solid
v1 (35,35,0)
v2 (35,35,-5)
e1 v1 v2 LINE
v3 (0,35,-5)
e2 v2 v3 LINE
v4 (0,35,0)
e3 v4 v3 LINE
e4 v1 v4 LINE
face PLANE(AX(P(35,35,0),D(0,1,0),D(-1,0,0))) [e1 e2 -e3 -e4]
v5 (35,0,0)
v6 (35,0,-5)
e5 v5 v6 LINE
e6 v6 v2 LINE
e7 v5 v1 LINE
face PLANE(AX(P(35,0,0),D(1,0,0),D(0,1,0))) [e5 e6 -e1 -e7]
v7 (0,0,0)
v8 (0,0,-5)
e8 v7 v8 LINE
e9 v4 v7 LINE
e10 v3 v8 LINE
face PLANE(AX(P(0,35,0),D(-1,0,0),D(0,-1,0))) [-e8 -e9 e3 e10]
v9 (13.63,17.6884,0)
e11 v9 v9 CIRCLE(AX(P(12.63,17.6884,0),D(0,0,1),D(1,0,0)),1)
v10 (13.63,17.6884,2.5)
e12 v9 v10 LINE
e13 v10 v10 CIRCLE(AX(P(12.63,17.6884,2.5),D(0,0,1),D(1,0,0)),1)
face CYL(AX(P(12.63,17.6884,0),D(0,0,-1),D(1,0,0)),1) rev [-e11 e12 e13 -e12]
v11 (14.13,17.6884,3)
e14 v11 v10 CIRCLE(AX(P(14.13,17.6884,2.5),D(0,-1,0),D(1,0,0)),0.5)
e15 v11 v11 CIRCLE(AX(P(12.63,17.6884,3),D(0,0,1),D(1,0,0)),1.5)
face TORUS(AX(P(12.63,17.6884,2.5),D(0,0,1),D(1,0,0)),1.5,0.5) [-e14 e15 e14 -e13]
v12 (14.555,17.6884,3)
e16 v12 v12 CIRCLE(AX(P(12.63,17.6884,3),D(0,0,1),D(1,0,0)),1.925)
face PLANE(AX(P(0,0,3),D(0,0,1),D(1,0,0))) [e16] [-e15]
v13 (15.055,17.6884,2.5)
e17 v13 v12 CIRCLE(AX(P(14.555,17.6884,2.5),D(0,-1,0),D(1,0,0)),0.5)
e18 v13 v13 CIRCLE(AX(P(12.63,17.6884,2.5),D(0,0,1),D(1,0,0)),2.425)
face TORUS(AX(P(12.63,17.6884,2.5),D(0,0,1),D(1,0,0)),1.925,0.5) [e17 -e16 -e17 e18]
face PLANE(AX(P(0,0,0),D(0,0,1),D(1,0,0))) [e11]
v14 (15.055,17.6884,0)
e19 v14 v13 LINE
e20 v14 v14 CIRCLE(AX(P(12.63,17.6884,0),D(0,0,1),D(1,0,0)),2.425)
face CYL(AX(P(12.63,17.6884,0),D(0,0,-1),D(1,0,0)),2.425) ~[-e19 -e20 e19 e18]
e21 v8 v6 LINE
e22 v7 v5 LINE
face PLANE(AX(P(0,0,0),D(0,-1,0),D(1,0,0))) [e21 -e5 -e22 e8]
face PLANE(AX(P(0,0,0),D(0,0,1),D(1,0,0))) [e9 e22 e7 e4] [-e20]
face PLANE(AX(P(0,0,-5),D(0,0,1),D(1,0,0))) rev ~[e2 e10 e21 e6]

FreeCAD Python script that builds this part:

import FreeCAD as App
import Part
import Sketcher

V = App.Vector


def edges_at(feature, points):
    """Names of the edges that pass closest to the given points."""
    edges = feature.Shape.Edges
    near = lambda p: min(range(len(edges)), key=lambda i: edges[i].distToShape(Part.Vertex(*p))[0])
    return sorted({f"Edge{near(p) + 1}" for p in points})

doc = App.newDocument("Part")
params = doc.addObject("Spreadsheet::Sheet", "Params")
for row, (alias, value) in enumerate([
    ("sketch1_width", "35 mm"),
    ("pad1_length", "5 mm"),
    ("sketch2_diameter", "2 mm"),
    ("sketch2_diameter2", "4.85 mm"),
    ("pad2_length", "3 mm"),
    ("fillet_radius", "0.5 mm"),
], start=1):
    params.set(f"A{row}", alias)
    params.set(f"B{row}", "=" + value)
    params.setAlias(f"B{row}", alias)

body = doc.addObject("PartDesign::Body", "Body")

sketch1 = doc.addObject("Sketcher::SketchObject", "Sketch")
body.addObject(sketch1)
sketch1.AttachmentSupport = (doc.XY_Plane, [""])
sketch1.MapMode = "FlatFace"
sketch1.addGeometry([
    Part.LineSegment(V(0, 35, 0), V(0, 0, 0)),
    Part.LineSegment(V(0, 0, 0), V(35, 0, 0)),
    Part.LineSegment(V(35, 0, 0), V(35, 35, 0)),
    Part.LineSegment(V(35, 35, 0), V(0, 35, 0)),
], False)
sketch1.addConstraint([
    Sketcher.Constraint("Coincident", 0, 2, 1, 1),
    Sketcher.Constraint("Coincident", 1, 2, 2, 1),
    Sketcher.Constraint("Coincident", 2, 2, 3, 1),
    Sketcher.Constraint("Coincident", 3, 2, 0, 1),
    Sketcher.Constraint("Vertical", 0),
    Sketcher.Constraint("Horizontal", 1),
    Sketcher.Constraint("Vertical", 2),
    Sketcher.Constraint("Horizontal", 3),
    Sketcher.Constraint("Coincident", 0, 2, -1, 1),
    Sketcher.Constraint("Equal", 3, 0),
    Sketcher.Constraint("DistanceX", 1, 1, 1, 2, 35.0),
])
sketch1.setExpression("Constraints[10]", "Params.sketch1_width")
pad1 = doc.addObject("PartDesign::Pad", "Pad")
body.addObject(pad1)
pad1.Profile = sketch1
pad1.setExpression("Length", "Params.pad1_length")
pad1.Reversed = True

sketch2 = doc.addObject("Sketcher::SketchObject", "Sketch001")
body.addObject(sketch2)
sketch2.AttachmentSupport = (doc.XY_Plane, [""])
sketch2.MapMode = "FlatFace"
sketch2.addGeometry([
    Part.Circle(V(12.63, 17.6884, 0), V(0, 0, 1), 2.425),
    Part.Circle(V(12.63, 17.6884, 0), V(0, 0, 1), 1),
], False)
sketch2.addConstraint([
    Sketcher.Constraint("Coincident", 1, 3, 0, 3),
    Sketcher.Constraint("Diameter", 1, 2.0),
    Sketcher.Constraint("Diameter", 0, 4.85),
    Sketcher.Constraint("DistanceX", -1, 1, 0, 3, 12.63),
    Sketcher.Constraint("DistanceY", -1, 1, 0, 3, 17.6884),
])
sketch2.setExpression("Constraints[1]", "Params.sketch2_diameter")
sketch2.setExpression("Constraints[2]", "Params.sketch2_diameter2")
pad2 = doc.addObject("PartDesign::Pad", "Pad001")
body.addObject(pad2)
pad2.Profile = sketch2
pad2.setExpression("Length", "Params.pad2_length")
doc.recompute()

fillet = doc.addObject("PartDesign::Fillet", "Fillet")
body.addObject(fillet)
fillet.Base = (pad2, edges_at(pad2, [(10.205, 17.688, 3), (11.63, 17.688, 3)]))
fillet.setExpression("Radius", "Params.fillet_radius")

doc.recompute()
